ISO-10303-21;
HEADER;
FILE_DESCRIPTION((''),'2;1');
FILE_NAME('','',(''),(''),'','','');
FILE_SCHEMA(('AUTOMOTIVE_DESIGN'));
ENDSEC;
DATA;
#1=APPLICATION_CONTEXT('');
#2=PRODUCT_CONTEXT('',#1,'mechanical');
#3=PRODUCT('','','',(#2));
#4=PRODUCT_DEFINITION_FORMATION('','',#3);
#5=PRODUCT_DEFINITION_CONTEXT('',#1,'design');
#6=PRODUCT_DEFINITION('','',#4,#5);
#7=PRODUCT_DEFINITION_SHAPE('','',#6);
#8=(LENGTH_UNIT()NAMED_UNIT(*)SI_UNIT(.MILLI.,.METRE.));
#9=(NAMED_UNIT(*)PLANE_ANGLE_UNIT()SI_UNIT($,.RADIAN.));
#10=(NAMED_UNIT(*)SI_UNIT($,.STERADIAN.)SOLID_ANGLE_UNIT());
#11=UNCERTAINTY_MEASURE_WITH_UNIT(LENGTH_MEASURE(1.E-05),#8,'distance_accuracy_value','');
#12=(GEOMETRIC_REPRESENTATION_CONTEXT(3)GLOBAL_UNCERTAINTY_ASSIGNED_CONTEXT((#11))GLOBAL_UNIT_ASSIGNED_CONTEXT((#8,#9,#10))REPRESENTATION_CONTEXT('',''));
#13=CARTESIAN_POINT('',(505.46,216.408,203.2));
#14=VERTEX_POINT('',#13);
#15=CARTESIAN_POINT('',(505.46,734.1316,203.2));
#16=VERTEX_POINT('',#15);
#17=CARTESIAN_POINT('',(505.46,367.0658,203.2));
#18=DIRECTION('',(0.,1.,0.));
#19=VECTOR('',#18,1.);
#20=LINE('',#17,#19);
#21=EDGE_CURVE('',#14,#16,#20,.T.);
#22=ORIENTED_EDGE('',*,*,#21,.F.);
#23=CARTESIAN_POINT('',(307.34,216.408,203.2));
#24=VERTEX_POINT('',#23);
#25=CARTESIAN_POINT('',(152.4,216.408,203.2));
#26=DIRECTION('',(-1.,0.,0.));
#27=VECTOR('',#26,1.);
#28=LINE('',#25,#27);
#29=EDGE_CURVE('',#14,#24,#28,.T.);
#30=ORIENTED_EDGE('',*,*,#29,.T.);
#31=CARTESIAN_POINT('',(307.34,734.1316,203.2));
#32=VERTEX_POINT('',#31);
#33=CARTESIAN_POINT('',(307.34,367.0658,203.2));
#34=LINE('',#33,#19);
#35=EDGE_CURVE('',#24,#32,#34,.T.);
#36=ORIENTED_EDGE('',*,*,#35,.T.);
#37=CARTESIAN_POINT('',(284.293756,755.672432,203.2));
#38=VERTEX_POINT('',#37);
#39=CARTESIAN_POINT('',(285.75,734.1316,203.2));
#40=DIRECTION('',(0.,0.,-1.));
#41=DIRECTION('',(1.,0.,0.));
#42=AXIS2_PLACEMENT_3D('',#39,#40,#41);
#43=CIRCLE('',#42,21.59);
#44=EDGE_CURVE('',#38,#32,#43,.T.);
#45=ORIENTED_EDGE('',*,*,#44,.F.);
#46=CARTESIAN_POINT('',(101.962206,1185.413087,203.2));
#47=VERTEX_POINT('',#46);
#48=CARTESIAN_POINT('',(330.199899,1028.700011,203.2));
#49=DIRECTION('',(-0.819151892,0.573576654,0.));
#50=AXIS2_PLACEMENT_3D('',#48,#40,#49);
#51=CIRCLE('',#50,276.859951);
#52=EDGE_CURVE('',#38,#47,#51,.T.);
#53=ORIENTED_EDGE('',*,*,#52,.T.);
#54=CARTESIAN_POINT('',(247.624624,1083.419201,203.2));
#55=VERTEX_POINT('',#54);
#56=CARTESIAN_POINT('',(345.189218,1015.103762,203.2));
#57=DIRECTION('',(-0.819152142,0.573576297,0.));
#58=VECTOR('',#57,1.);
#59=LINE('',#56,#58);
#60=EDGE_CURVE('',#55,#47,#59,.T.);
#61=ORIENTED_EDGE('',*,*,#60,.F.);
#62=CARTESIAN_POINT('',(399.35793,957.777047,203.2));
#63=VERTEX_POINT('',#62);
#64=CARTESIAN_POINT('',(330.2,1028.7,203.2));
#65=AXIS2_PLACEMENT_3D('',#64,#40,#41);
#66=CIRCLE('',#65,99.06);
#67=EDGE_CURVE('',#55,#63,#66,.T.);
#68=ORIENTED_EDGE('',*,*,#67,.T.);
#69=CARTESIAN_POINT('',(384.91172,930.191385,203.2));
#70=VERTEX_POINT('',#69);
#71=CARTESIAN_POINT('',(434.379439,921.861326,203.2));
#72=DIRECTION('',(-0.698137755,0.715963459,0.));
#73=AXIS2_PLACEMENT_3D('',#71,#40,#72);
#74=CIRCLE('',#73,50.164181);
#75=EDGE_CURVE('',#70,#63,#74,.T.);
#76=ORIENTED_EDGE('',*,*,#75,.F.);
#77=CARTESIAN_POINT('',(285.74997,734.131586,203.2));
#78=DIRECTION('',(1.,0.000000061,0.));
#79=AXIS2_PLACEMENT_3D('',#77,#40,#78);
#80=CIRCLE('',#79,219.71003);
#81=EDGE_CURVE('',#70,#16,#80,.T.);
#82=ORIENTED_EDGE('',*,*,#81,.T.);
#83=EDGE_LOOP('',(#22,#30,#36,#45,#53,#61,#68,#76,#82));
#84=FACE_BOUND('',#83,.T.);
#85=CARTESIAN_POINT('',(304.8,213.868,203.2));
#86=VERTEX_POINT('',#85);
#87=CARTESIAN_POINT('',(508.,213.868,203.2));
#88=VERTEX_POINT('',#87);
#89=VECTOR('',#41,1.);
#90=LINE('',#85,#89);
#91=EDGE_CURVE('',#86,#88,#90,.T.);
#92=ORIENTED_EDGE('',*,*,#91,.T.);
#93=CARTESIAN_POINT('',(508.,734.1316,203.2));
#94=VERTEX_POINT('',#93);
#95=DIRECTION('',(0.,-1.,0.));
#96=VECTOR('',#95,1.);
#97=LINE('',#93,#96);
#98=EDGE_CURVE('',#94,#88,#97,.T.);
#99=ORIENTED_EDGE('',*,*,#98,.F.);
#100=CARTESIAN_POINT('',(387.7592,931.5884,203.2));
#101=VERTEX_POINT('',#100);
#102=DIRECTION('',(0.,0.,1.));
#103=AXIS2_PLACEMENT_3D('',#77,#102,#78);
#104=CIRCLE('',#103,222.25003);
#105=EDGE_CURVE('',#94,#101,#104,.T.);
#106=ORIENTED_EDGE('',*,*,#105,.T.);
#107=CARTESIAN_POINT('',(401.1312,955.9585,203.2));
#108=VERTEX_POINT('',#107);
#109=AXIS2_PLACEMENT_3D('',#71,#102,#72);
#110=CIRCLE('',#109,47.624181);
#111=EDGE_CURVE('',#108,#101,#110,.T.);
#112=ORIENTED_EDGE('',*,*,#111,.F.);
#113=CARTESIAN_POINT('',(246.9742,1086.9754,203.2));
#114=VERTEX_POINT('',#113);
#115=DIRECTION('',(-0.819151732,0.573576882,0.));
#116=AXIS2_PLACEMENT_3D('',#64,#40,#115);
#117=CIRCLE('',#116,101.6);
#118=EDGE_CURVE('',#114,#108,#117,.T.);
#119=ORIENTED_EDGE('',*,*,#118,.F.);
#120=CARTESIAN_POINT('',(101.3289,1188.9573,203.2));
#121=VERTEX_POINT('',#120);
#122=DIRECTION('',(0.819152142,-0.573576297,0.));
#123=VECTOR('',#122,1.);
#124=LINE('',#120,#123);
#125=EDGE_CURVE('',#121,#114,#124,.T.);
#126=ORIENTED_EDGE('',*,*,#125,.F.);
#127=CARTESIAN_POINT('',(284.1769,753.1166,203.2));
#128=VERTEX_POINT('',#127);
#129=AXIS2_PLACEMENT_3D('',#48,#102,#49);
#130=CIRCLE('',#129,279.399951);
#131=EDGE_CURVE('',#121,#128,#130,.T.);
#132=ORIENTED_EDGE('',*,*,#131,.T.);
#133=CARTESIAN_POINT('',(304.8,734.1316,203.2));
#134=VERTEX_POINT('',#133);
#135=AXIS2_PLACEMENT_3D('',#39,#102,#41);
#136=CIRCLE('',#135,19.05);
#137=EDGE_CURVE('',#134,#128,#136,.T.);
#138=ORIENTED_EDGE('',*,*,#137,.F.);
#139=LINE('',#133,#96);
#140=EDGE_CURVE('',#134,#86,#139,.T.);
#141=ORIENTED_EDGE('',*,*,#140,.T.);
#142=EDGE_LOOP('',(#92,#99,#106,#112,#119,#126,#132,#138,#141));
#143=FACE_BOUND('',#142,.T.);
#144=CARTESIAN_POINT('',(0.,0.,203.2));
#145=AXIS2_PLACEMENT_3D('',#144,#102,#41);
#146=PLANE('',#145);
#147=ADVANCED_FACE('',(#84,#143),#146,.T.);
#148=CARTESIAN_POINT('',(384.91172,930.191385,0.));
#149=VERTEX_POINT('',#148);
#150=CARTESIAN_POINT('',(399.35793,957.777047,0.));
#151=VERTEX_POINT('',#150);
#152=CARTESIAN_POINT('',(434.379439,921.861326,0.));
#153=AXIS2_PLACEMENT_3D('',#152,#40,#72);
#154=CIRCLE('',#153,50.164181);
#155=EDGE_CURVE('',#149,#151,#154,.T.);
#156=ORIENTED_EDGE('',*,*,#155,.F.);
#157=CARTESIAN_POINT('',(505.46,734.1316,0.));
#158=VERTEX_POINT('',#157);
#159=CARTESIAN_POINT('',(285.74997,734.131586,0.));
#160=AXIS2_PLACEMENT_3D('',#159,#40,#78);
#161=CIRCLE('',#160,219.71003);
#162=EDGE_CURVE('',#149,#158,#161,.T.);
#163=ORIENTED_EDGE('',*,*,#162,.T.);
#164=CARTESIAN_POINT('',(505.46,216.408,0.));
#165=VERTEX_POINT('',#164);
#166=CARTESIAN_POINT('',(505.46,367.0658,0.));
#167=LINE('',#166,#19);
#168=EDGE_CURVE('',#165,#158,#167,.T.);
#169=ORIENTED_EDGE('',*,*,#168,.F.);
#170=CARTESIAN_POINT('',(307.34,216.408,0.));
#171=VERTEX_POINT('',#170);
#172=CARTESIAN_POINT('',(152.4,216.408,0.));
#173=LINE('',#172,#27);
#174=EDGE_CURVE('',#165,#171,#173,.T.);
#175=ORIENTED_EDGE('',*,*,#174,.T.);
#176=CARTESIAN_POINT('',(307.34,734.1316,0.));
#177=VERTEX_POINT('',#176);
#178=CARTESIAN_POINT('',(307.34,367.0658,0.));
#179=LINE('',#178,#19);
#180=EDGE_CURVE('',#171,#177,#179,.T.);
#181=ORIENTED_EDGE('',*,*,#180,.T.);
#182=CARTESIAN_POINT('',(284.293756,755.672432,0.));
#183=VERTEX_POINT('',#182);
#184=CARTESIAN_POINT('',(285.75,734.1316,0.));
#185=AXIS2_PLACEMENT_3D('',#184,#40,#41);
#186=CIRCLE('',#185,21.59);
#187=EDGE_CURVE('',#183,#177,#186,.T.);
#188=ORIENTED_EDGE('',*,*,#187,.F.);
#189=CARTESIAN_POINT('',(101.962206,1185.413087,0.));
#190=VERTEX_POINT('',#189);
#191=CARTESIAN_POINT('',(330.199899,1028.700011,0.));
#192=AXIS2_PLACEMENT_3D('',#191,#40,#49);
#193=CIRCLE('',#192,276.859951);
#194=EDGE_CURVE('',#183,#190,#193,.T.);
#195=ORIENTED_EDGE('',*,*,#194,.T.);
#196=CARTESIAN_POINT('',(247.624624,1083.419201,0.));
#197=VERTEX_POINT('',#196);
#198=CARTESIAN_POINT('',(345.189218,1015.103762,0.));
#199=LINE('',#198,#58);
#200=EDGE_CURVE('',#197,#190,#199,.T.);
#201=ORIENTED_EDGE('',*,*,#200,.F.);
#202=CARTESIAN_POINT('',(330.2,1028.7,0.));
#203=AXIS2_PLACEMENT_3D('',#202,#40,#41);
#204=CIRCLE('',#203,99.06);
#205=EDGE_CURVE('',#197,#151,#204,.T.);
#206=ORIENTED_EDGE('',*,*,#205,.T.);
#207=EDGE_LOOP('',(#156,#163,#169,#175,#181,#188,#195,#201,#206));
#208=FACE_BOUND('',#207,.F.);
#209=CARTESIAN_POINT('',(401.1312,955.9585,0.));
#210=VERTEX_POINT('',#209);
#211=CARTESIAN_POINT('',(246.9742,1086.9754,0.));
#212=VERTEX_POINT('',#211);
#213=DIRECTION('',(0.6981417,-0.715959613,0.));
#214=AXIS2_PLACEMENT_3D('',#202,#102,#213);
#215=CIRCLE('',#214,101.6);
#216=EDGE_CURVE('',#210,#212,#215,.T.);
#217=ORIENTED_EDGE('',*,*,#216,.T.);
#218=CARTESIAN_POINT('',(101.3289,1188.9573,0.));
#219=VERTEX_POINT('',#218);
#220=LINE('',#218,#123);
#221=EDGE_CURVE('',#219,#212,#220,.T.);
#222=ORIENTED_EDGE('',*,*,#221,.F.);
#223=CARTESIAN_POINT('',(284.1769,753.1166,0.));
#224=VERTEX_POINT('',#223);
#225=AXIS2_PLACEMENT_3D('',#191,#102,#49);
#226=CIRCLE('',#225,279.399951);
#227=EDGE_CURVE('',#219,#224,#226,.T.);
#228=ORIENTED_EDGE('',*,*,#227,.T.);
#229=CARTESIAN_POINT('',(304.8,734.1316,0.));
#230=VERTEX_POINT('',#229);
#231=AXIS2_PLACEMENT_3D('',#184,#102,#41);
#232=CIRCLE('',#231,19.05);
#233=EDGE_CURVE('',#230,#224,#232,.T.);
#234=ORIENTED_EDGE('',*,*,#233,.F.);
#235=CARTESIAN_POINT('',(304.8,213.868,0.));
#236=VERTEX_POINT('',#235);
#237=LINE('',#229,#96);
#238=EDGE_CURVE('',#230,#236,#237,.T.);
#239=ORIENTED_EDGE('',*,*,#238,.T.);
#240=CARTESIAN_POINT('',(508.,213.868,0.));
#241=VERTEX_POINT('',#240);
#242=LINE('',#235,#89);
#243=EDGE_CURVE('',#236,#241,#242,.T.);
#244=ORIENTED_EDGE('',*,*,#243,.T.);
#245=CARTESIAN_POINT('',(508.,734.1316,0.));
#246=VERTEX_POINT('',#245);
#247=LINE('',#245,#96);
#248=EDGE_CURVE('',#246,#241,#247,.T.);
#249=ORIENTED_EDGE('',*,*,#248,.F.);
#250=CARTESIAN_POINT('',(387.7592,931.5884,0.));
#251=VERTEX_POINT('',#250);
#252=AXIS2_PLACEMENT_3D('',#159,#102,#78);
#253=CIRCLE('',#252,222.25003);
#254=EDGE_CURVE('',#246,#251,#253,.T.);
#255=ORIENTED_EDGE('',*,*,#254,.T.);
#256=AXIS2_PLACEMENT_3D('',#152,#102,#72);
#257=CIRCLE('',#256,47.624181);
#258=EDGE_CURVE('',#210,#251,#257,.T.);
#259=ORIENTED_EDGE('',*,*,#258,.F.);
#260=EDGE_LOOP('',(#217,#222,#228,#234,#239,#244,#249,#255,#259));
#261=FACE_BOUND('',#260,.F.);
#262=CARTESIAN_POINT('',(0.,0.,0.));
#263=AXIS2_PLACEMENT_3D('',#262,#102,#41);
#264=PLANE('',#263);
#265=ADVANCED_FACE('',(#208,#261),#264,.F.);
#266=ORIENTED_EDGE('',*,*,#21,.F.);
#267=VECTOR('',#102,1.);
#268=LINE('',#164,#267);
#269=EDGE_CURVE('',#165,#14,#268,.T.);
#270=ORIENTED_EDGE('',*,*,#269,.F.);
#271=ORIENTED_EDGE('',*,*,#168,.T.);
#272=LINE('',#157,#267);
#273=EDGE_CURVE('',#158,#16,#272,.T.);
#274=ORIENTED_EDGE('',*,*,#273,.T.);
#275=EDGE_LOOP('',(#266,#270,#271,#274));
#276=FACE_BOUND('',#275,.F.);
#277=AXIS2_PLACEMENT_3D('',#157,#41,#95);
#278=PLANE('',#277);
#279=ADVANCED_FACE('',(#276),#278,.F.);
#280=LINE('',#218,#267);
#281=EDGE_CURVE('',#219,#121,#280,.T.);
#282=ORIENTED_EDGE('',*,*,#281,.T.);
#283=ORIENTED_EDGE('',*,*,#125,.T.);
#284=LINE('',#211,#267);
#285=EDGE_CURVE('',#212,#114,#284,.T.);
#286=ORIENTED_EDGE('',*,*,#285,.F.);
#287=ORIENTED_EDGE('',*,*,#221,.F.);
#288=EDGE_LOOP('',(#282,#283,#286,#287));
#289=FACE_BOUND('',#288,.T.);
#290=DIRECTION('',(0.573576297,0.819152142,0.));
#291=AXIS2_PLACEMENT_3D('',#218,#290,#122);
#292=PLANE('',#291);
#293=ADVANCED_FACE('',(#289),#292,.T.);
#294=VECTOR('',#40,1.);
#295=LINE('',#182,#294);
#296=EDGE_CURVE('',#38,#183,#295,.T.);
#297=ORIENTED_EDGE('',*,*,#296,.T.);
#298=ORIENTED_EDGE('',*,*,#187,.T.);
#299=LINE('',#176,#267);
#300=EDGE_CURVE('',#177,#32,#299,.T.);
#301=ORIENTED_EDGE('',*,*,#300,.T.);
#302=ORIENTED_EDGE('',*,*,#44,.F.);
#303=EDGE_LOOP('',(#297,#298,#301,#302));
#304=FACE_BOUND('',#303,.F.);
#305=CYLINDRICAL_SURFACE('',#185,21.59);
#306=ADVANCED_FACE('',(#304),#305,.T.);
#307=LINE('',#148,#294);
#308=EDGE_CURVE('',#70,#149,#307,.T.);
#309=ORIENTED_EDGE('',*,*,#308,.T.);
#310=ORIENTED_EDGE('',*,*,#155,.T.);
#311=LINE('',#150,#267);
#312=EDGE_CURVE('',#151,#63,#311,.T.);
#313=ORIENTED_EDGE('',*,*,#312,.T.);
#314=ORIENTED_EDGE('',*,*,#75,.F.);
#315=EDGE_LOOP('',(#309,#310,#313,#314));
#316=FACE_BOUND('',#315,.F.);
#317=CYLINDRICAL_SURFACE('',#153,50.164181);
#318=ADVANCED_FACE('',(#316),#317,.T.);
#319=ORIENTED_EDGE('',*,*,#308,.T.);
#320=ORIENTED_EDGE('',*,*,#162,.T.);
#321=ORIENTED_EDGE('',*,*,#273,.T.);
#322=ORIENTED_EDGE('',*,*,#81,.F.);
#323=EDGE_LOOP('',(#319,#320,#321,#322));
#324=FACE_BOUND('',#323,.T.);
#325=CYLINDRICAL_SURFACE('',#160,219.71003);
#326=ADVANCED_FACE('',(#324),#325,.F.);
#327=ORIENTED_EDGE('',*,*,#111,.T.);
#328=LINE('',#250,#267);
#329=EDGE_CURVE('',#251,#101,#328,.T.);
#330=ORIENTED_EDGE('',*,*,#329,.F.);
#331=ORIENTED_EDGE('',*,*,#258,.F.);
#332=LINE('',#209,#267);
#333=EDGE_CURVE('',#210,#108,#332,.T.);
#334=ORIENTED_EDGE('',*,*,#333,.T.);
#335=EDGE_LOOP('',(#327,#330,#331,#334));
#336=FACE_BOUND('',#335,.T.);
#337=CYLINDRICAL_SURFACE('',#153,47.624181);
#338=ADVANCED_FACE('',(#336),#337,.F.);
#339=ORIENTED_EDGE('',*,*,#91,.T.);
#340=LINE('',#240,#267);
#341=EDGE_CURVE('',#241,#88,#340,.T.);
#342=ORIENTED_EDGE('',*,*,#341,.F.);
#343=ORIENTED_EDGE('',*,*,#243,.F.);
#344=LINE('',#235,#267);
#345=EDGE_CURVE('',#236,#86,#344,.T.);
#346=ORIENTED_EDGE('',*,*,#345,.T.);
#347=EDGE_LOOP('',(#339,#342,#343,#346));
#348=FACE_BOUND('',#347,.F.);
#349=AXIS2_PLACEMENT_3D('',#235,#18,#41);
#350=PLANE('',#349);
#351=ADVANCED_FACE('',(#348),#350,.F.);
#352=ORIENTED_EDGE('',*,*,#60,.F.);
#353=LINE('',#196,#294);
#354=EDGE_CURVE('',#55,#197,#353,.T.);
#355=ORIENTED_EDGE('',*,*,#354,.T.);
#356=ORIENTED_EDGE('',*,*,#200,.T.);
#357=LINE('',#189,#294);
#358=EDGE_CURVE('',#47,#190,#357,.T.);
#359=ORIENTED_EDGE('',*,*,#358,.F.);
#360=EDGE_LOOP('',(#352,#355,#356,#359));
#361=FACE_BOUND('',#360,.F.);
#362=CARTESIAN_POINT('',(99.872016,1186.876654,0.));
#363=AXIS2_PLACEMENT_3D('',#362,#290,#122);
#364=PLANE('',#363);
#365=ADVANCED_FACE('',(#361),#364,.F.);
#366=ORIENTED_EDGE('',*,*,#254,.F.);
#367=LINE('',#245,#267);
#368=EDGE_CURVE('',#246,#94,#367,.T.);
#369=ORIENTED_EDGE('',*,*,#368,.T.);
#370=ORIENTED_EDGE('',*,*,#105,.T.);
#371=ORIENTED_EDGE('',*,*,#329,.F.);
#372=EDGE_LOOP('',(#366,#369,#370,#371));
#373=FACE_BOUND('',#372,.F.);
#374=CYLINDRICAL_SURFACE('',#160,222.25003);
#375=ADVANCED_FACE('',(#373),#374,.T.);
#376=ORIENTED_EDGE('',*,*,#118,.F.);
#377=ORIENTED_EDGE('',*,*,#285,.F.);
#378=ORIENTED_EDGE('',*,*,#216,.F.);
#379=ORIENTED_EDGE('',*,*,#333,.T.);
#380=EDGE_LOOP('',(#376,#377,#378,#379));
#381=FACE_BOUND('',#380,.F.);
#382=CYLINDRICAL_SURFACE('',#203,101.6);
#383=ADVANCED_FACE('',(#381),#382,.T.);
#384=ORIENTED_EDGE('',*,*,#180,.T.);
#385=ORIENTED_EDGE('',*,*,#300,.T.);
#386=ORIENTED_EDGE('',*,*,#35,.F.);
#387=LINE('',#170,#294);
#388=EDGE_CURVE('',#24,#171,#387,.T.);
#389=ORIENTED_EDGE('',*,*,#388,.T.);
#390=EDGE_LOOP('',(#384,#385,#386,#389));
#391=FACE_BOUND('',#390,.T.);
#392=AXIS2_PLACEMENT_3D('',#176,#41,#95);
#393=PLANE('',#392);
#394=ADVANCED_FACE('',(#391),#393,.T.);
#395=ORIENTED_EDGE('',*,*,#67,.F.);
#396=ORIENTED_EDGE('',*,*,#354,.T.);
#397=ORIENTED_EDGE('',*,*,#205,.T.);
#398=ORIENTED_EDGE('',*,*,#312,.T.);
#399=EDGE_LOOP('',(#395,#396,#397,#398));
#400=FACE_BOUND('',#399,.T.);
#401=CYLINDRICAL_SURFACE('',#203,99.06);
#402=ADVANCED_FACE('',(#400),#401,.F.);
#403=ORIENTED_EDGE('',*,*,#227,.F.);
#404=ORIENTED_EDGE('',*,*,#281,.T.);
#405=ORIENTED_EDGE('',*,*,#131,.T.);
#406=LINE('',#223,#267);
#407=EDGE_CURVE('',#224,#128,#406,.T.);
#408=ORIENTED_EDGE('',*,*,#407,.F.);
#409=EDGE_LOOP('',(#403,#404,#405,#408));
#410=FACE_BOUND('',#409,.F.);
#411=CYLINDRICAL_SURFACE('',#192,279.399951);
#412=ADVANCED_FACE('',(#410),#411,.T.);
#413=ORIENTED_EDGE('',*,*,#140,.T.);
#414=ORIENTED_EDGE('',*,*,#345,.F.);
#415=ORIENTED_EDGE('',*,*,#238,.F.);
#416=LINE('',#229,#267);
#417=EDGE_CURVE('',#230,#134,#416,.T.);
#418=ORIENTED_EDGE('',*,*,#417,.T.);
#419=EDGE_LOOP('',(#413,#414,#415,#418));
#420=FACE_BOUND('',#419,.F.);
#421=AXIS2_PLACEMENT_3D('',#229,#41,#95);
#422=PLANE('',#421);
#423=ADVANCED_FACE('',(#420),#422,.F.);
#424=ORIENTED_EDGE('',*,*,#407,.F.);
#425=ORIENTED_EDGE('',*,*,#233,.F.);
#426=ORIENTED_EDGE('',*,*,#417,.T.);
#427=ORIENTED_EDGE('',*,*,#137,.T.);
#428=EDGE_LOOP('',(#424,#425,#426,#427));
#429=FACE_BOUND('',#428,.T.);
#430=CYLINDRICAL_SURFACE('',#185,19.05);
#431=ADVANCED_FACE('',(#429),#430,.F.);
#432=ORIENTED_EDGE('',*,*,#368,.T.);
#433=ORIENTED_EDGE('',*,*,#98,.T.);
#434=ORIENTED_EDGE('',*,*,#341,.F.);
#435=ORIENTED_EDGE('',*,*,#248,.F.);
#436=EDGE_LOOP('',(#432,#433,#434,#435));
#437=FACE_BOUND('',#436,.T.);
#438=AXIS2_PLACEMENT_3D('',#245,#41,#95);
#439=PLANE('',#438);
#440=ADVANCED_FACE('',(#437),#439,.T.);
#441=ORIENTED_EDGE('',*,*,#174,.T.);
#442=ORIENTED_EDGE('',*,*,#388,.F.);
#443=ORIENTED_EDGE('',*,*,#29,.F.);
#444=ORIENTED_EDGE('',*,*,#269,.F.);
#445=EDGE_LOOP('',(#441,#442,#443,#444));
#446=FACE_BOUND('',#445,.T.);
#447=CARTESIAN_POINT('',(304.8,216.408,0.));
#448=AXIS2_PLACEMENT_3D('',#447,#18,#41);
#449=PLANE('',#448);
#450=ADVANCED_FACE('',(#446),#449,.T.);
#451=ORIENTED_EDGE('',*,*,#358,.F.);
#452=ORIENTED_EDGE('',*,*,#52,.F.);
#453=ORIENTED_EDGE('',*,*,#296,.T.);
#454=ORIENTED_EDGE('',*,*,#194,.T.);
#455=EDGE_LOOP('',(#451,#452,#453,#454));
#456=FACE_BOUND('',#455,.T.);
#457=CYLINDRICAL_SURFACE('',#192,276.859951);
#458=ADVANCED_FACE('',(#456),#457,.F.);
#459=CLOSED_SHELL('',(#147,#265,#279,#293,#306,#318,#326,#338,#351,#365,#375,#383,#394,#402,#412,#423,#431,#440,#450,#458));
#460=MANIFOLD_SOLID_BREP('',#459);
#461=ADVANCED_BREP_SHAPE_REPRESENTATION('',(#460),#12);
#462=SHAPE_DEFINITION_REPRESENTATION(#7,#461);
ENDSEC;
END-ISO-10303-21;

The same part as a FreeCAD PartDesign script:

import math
import FreeCAD as App
import Part
import Sketcher

V = App.Vector
Q = App.Units.Quantity


def faces_at(feature, points):
    """Names of the faces that lie closest to the given points."""
    faces = feature.Shape.Faces
    near = lambda p: min(range(len(faces)), key=lambda i: faces[i].distToShape(Part.Vertex(*p))[0])
    return sorted({f"Face{near(p) + 1}" for p in points})

doc = App.newDocument("Part")
params = doc.addObject("Spreadsheet::Sheet", "Params")
for row, (alias, value) in enumerate([
    ("sketch1_radius", "4 in"),
    ("sketch1_radius2", "11 in"),
    ("sketch1_width", "8 in"),
    ("sketch1_radius3", "0.75 in"),
    ("sketch1_radius4", "1.875 in"),
    ("pad1_length", "8 in"),
    ("thickness_wall", "0.1 in"),
], start=1):
    params.set(f"A{row}", alias)
    params.set(f"B{row}", "=" + value)
    params.setAlias(f"B{row}", alias)

body = doc.addObject("PartDesign::Body", "Body")

# Sketch on XY plane
sketch1 = body.newObject("Sketcher::SketchObject", "Sketch")
sketch1.AttachmentSupport = (doc.getObject("XY_Plane"), [""])
sketch1.MapMode = "FlatFace"
sketch1.addGeometry(Part.ArcOfCircle(Part.Circle(V(330.2, 1028.7, 0), V(0, 0, 1), 101.6), math.radians(-45.721898), math.radians(144.999969)), False)
sketch1.addGeometry(Part.LineSegment(V(246.9742, 1086.9754, 0), V(101.3289, 1188.9573, 0)), False)
sketch1.addGeometry(Part.ArcOfCircle(Part.Circle(V(330.2, 1028.7, 0), V(0, 0, 1), 279.40004), math.radians(144.999995), math.radians(260.51896)), False)
sketch1.addGeometry(Part.ArcOfCircle(Part.Circle(V(285.75, 734.1316, 0), V(0, 0, 1), 19.05), math.radians(0), math.radians(94.736716)), False)
sketch1.addGeometry(Part.LineSegment(V(304.8, 734.1316, 0), V(304.8, 213.868, 0)), False)
sketch1.addGeometry(Part.LineSegment(V(304.8, 213.868, 0), V(508, 213.868, 0)), False)
sketch1.addGeometry(Part.LineSegment(V(508, 213.868, 0), V(508, 734.1316, 0)), False)
sketch1.addGeometry(Part.ArcOfCircle(Part.Circle(V(285.75, 734.1316, 0), V(0, 0, 1), 222.25), math.radians(0), math.radians(62.678433)), False)
sketch1.addGeometry(Part.ArcOfCircle(Part.Circle(V(434.38, 921.8609, 0), V(0, 0, 1), 47.624878), math.radians(134.277911), math.radians(168.214241)), False)
sketch1.addConstraint(Sketcher.Constraint("Coincident", 0, 2, 1, 1))
sketch1.addConstraint(Sketcher.Constraint("Coincident", 1, 2, 2, 1))
sketch1.addConstraint(Sketcher.Constraint("Coincident", 2, 2, 3, 2))
sketch1.addConstraint(Sketcher.Constraint("Tangent", 3, 1, 4, 1))
sketch1.addConstraint(Sketcher.Constraint("Coincident", 4, 2, 5, 1))
sketch1.addConstraint(Sketcher.Constraint("Coincident", 5, 2, 6, 1))
sketch1.addConstraint(Sketcher.Constraint("Tangent", 6, 2, 7, 1))
sketch1.addConstraint(Sketcher.Constraint("Coincident", 7, 2, 8, 2))
sketch1.addConstraint(Sketcher.Constraint("Tangent", 8, 1, 0, 1))
sketch1.addConstraint(Sketcher.Constraint("Vertical", 4))
sketch1.addConstraint(Sketcher.Constraint("Horizontal", 5))
sketch1.addConstraint(Sketcher.Constraint("Vertical", 6))
sketch1.addConstraint(Sketcher.Constraint("Coincident", 2, 3, 0, 3))
sketch1.addConstraint(Sketcher.Constraint("Coincident", 7, 3, 3, 3))
sketch1.addConstraint(Sketcher.Constraint("Radius", 0, Q("4 in")))
sketch1.addConstraint(Sketcher.Constraint("Radius", 2, Q("11 in")))
sketch1.addConstraint(Sketcher.Constraint("DistanceX", 5, 1, 5, 2, Q("8 in")))
sketch1.addConstraint(Sketcher.Constraint("Radius", 3, Q("0.75 in")))
sketch1.addConstraint(Sketcher.Constraint("DistanceX", -1, 1, 3, 1, Q("12 in")))
sketch1.addConstraint(Sketcher.Constraint("DistanceY", -1, 1, 0, 3, Q("40.5 in")))
sketch1.addConstraint(Sketcher.Constraint("DistanceY", -1, 1, 4, 2, Q("8.42 in")))
sketch1.addConstraint(Sketcher.Constraint("DistanceX", -1, 1, 0, 3, Q("13 in")))
sketch1.addConstraint(Sketcher.Constraint("Angle", 1, Q("145 deg")))
sketch1.addConstraint(Sketcher.Constraint("Radius", 8, Q("1.875 in")))
sketch1.addConstraint(Sketcher.Constraint("DistanceX", 8, 1, 8, 3, Q("1.309 in")))
sketch1.addConstraint(Sketcher.Constraint("DistanceY", 4, 2, 4, 1, 520.2636))
sketch1.addConstraint(Sketcher.Constraint("DistanceX", -1, 1, 0, 2, Q("9.7234 in")))
sketch1.setExpression("Constraints[14]", "Params.sketch1_radius")
sketch1.setExpression("Constraints[15]", "Params.sketch1_radius2")
sketch1.setExpression("Constraints[16]", "Params.sketch1_width")
sketch1.setExpression("Constraints[17]", "Params.sketch1_radius3")
sketch1.setExpression("Constraints[23]", "Params.sketch1_radius4")
pad1 = body.newObject("PartDesign::Pad", "Pad")
pad1.Profile = sketch1
pad1.setExpression("Length", "Params.pad1_length")
doc.recompute()

thickness = body.newObject("PartDesign::Thickness", "Thickness")
thickness.Base = (pad1, faces_at(pad1, [(372.533, 560.71, 0), (440.267, 387.289, 203.2)]))
thickness.setExpression("Value", "Params.thickness_wall")
thickness.Reversed = True
thickness.Join = "Intersection"

doc.recompute()
